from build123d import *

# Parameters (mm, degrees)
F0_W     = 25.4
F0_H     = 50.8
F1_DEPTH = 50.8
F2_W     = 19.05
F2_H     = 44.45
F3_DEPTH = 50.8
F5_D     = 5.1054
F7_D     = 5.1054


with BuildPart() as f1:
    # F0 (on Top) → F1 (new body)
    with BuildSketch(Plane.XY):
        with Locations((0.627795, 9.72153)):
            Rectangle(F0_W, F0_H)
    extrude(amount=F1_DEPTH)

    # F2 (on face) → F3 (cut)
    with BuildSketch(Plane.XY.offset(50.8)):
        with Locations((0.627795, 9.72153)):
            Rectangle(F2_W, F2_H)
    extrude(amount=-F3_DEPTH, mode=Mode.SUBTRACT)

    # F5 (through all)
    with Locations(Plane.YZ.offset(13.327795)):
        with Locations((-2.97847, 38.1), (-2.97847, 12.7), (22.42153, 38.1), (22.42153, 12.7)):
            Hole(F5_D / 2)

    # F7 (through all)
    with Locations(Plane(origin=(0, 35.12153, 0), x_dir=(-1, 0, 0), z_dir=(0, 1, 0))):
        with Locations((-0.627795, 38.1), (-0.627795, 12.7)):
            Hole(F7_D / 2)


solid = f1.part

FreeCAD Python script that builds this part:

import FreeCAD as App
import Part
import Sketcher
from FreeCAD import Vector
Q = App.Units.Quantity

doc = App.newDocument("Part")
params = doc.addObject("Spreadsheet::Sheet", "Params")
for row, (alias, value) in enumerate([
    ("sketch1_width", "1 in"),
    ("sketch1_height", "2 in"),
    ("pad1_length", "2 in"),
    ("sketch2_width", "0.75 in"),
    ("sketch2_height", "1.75 in"),
    ("pocket1_length", "2 in"),
    ("sketch3_diameter", "0.201 in"),
    ("hole_diameter", "0.201 in"),
    ("sketch4_diameter", "0.201 in"),
    ("hole2_diameter", "0.201 in"),
], start=1):
    params.set(f"A{row}", alias)
    params.set(f"B{row}", "=" + value)
    params.setAlias(f"B{row}", alias)

body = doc.addObject("PartDesign::Body", "Body")

sketch1 = doc.addObject("Sketcher::SketchObject", "Sketch")
body.addObject(sketch1)
sketch1.AttachmentSupport = (doc.XY_Plane, [""])
sketch1.MapMode = "FlatFace"
sketch1.addGeometry([
    Part.LineSegment(Vector(-12, 35, 0), Vector(-12, -16, 0)),
    Part.LineSegment(Vector(-12, -16, 0), Vector(13, -16, 0)),
    Part.LineSegment(Vector(13, -16, 0), Vector(13, 35, 0)),
    Part.LineSegment(Vector(13, 35, 0), Vector(-12, 35, 0)),
], False)
sketch1.addConstraint([
    Sketcher.Constraint("Coincident", 0, 2, 1, 1),
    Sketcher.Constraint("Coincident", 1, 2, 2, 1),
    Sketcher.Constraint("Coincident", 2, 2, 3, 1),
    Sketcher.Constraint("Coincident", 3, 2, 0, 1),
    Sketcher.Constraint("Vertical", 0),
    Sketcher.Constraint("Horizontal", 1),
    Sketcher.Constraint("Vertical", 2),
    Sketcher.Constraint("Horizontal", 3),
    Sketcher.Constraint("DistanceX", 1, 1, 1, 2, Q("1 in")),
    Sketcher.Constraint("DistanceY", 0, 2, 0, 1, Q("2 in")),
    Sketcher.Constraint("DistanceY", 0, 2, -1, 1, Q("15.67847 mm")),
    Sketcher.Constraint("DistanceX", 0, 2, -1, 1, Q("12.072205 mm")),
])
sketch1.setExpression("Constraints[8]", "Params.sketch1_width")
sketch1.setExpression("Constraints[9]", "Params.sketch1_height")
pad1 = doc.addObject("PartDesign::Pad", "Pad")
body.addObject(pad1)
pad1.Profile = sketch1
pad1.setExpression("Length", "Params.pad1_length")

sketch2 = doc.addObject("Sketcher::SketchObject", "Sketch001")
body.addObject(sketch2)
sketch2.AttachmentSupport = (doc.XY_Plane, [""])
sketch2.MapMode = "FlatFace"
sketch2.AttachmentOffset = App.Placement(Vector(0, 0, 2 * 25.4), App.Rotation())
sketch2.addGeometry([
    Part.LineSegment(Vector(-9, 32, 0), Vector(-9, -13, 0)),
    Part.LineSegment(Vector(-9, -13, 0), Vector(10, -13, 0)),
    Part.LineSegment(Vector(10, -13, 0), Vector(10, 32, 0)),
    Part.LineSegment(Vector(10, 32, 0), Vector(-9, 32, 0)),
], False)
sketch2.addConstraint([
    Sketcher.Constraint("Coincident", 0, 2, 1, 1),
    Sketcher.Constraint("Coincident", 1, 2, 2, 1),
    Sketcher.Constraint("Coincident", 2, 2, 3, 1),
    Sketcher.Constraint("Coincident", 3, 2, 0, 1),
    Sketcher.Constraint("Vertical", 0),
    Sketcher.Constraint("Horizontal", 1),
    Sketcher.Constraint("Vertical", 2),
    Sketcher.Constraint("Horizontal", 3),
    Sketcher.Constraint("DistanceX", 1, 1, 1, 2, Q("0.75 in")),
    Sketcher.Constraint("DistanceY", 0, 2, 0, 1, Q("1.75 in")),
    Sketcher.Constraint("DistanceY", 0, 2, -1, 1, Q("12.50347 mm")),
    Sketcher.Constraint("DistanceX", 0, 2, -1, 1, Q("8.897205 mm")),
])
sketch2.setExpression("Constraints[8]", "Params.sketch2_width")
sketch2.setExpression("Constraints[9]", "Params.sketch2_height")
pocket1 = doc.addObject("PartDesign::Pocket", "Pocket")
body.addObject(pocket1)
pocket1.Profile = sketch2
pocket1.setExpression("Length", "Params.pocket1_length")

sketch3 = doc.addObject("Sketcher::SketchObject", "Sketch002")
body.addObject(sketch3)
sketch3.AttachmentSupport = (doc.YZ_Plane, [""])
sketch3.MapMode = "FlatFace"
sketch3.AttachmentOffset = App.Placement(Vector(0, 0, 13.327795), App.Rotation())
sketch3.addGeometry([
    Part.Circle(Vector(-3, 38.1, 0), Vector(0, 0, 1), 2.6),
    Part.Circle(Vector(-3, 12.7, 0), Vector(0, 0, 1), 2.6),
    Part.Circle(Vector(22.4, 38.1, 0), Vector(0, 0, 1), 2.6),
    Part.Circle(Vector(22.4, 12.7, 0), Vector(0, 0, 1), 2.6),
], False)
sketch3.addConstraint([
    Sketcher.Constraint("Equal", 0, 1),
    Sketcher.Constraint("Equal", 1, 2),
    Sketcher.Constraint("Equal", 2, 3),
    Sketcher.Constraint("Horizontal", 0, 3, 2, 3),
    Sketcher.Constraint("Horizontal", 1, 3, 3, 3),
    Sketcher.Constraint("Vertical", 0, 3, 1, 3),
    Sketcher.Constraint("Vertical", 2, 3, 3, 3),
    Sketcher.Constraint("Diameter", 0, Q("0.201 in")),
    Sketcher.Constraint("DistanceY", 1, 3, 0, 3, Q("1 in")),
    Sketcher.Constraint("DistanceX", 0, 3, 2, 3, Q("1 in")),
    Sketcher.Constraint("DistanceY", -1, 1, 0, 3, Q("1.5 in")),
    Sketcher.Constraint("DistanceX", 0, 3, -1, 1, Q("2.97847 mm")),
])
sketch3.setExpression("Constraints[7]", "Params.sketch3_diameter")
doc.recompute()
hole = doc.addObject("PartDesign::Hole", "Hole")
body.addObject(hole)
hole.Profile = sketch3
hole.ThreadType = "None"
hole.setExpression("Diameter", "Params.hole_diameter")
hole.DepthType = "ThroughAll"

sketch4 = doc.addObject("Sketcher::SketchObject", "Sketch003")
body.addObject(sketch4)
sketch4.AttachmentSupport = (doc.XZ_Plane, [""])
sketch4.MapMode = "FlatFace"
sketch4.AttachmentOffset = App.Placement(Vector(0, 0, -35.12153), App.Rotation())
sketch4.addGeometry([
    Part.Circle(Vector(0.6, 38.1, 0), Vector(0, 0, 1), 2.6),
    Part.Circle(Vector(0.6, 12.7, 0), Vector(0, 0, 1), 2.6),
], False)
sketch4.addConstraint([
    Sketcher.Constraint("Equal", 0, 1),
    Sketcher.Constraint("Vertical", 0, 3, 1, 3),
    Sketcher.Constraint("Diameter", 0, Q("0.201 in")),
    Sketcher.Constraint("DistanceY", 1, 3, 0, 3, Q("1 in")),
    Sketcher.Constraint("DistanceY", -1, 1, 0, 3, Q("1.5 in")),
    Sketcher.Constraint("DistanceX", -1, 1, 0, 3, Q("0.627795 mm")),
])
sketch4.setExpression("Constraints[2]", "Params.sketch4_diameter")
doc.recompute()
hole2 = doc.addObject("PartDesign::Hole", "Hole001")
body.addObject(hole2)
hole2.Profile = sketch4
hole2.ThreadType = "None"
hole2.setExpression("Diameter", "Params.hole2_diameter")
hole2.DepthType = "ThroughAll"
hole2.Reversed = True

doc.recompute()
